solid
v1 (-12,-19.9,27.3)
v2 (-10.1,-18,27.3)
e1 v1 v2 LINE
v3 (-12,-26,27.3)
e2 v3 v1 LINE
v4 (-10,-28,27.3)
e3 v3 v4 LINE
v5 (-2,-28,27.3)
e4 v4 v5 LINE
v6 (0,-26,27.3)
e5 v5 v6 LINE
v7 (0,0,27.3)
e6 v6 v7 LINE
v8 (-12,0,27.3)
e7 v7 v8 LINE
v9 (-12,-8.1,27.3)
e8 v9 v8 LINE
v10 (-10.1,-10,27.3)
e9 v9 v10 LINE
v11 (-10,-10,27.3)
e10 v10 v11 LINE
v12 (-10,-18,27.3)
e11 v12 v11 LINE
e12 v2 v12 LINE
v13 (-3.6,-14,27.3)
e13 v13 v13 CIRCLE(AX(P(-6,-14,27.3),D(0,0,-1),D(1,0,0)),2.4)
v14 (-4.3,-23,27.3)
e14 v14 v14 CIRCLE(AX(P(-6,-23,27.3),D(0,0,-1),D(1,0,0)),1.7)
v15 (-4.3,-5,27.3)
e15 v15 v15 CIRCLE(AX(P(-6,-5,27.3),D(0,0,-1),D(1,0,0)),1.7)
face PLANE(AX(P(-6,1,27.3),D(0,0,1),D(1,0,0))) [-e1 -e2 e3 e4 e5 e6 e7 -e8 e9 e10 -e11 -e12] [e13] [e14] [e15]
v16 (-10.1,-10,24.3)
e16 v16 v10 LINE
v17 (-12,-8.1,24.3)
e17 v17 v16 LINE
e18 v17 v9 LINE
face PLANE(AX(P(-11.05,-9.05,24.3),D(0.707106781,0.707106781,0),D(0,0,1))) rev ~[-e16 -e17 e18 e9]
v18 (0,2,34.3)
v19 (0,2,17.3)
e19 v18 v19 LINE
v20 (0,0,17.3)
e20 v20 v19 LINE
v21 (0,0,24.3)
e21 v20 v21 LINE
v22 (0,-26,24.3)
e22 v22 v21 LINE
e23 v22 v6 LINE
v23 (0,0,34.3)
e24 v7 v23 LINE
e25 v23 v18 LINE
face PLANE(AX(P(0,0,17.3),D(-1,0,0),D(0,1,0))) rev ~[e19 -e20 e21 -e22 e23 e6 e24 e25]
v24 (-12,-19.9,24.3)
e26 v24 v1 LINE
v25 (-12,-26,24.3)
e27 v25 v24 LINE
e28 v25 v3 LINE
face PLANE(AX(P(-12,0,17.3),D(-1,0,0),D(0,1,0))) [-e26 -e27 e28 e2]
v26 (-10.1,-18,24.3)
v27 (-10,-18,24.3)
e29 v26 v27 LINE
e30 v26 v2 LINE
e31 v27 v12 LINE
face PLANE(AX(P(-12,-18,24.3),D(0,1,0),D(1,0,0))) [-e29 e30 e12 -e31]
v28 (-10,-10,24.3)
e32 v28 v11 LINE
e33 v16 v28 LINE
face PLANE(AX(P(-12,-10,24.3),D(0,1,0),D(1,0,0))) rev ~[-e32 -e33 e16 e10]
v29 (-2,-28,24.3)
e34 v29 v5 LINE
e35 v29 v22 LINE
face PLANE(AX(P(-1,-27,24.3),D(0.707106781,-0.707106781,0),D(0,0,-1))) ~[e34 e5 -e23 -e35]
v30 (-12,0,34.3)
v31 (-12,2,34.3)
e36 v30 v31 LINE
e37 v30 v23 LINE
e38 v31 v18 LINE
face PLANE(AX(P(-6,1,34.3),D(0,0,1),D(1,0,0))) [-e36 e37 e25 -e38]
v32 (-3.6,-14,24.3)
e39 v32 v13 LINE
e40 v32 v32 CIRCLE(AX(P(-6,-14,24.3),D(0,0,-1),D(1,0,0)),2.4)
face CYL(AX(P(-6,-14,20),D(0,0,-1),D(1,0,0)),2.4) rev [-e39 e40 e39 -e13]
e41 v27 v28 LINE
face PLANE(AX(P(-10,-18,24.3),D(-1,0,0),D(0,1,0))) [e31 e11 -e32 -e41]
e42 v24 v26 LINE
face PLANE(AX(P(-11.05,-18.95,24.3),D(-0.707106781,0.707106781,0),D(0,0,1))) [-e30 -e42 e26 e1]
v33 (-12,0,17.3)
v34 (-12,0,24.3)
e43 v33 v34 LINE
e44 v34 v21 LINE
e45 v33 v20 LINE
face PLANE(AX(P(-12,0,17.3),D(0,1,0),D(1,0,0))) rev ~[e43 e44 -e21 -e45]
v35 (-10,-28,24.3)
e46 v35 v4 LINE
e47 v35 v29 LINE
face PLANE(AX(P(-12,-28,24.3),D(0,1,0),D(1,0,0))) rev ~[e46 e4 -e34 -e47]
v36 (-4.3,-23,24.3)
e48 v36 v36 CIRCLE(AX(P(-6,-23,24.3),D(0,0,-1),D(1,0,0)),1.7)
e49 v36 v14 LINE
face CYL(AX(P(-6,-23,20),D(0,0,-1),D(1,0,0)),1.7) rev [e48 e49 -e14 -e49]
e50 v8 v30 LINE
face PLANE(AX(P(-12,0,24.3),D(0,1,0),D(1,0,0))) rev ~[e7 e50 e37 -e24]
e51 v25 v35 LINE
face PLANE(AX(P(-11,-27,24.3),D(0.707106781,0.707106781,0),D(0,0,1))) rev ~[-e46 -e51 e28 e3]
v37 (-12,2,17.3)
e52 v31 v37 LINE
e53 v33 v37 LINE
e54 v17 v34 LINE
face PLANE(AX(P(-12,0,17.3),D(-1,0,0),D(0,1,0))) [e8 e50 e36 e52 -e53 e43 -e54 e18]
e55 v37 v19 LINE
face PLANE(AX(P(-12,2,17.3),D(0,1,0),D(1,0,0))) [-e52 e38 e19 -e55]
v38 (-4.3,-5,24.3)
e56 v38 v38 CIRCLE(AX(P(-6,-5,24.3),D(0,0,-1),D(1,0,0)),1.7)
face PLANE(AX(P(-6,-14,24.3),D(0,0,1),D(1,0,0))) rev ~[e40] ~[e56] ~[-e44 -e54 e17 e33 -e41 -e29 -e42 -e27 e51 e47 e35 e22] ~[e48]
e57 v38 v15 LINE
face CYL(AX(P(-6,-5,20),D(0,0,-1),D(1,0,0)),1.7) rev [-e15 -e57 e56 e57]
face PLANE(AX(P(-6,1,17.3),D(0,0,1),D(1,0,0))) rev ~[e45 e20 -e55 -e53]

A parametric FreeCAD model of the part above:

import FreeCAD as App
import Part
import Sketcher


def edges_at(feature, points):
    """Names of the edges that pass closest to the given points."""
    edges = feature.Shape.Edges
    near = lambda p: min(range(len(edges)), key=lambda i: edges[i].distToShape(Part.Vertex(*p))[0])
    return sorted({f"Edge{near(p) + 1}" for p in points})

doc = App.newDocument("Part")
body = doc.addObject("PartDesign::Body", "Body")

sketch1 = body.newObject("Sketcher::SketchObject", "Sketch")
sketch1.AttachmentSupport = (doc.getObject("XY_Plane"), [""])
sketch1.MapMode = "FlatFace"
sketch1.AttachmentOffset = App.Placement(App.Vector(0, 0, 24.3), App.Rotation())
sketch1.addGeometry([
    Part.LineSegment(App.Vector(-12, -10, 0), App.Vector(-12, -18, 0)),
    Part.LineSegment(App.Vector(-12, -18, 0), App.Vector(-10, -18, 0)),
    Part.LineSegment(App.Vector(-10, -18, 0), App.Vector(-10, -10, 0)),
    Part.LineSegment(App.Vector(-10, -10, 0), App.Vector(-12, -10, 0)),
], False)
sketch1.addConstraint([
    Sketcher.Constraint("Coincident", 0, 2, 1, 1),
    Sketcher.Constraint("Coincident", 1, 2, 2, 1),
    Sketcher.Constraint("Coincident", 2, 2, 3, 1),
    Sketcher.Constraint("Coincident", 3, 2, 0, 1),
    Sketcher.Constraint("Vertical", 0),
    Sketcher.Constraint("Horizontal", 1),
    Sketcher.Constraint("Vertical", 2),
    Sketcher.Constraint("Horizontal", 3),
    Sketcher.Constraint("DistanceX", 1, 1, 1, 2, 2.0),
    Sketcher.Constraint("DistanceY", 0, 2, 0, 1, 8.0),
    Sketcher.Constraint("DistanceX", 0, 2, -1, 1, 12.0),
    Sketcher.Constraint("DistanceY", 0, 2, -1, 1, 18.0),
])
pad1 = body.newObject("PartDesign::Pad", "Pad")
pad1.Profile = sketch1
pad1.Length = 3
body2 = doc.addObject("PartDesign::Body", "Body001")

sketch2 = body2.newObject("Sketcher::SketchObject", "Sketch001")
sketch2.AttachmentSupport = (doc.getObject("XY_Plane001"), [""])
sketch2.MapMode = "FlatFace"
sketch2.AttachmentOffset = App.Placement(App.Vector(0, 0, 17.3), App.Rotation())
sketch2.addGeometry([
    Part.LineSegment(App.Vector(-12, 2, 0), App.Vector(-12, 0, 0)),
    Part.LineSegment(App.Vector(-12, 0, 0), App.Vector(0, 0, 0)),
    Part.LineSegment(App.Vector(0, 0, 0), App.Vector(0, 2, 0)),
    Part.LineSegment(App.Vector(0, 2, 0), App.Vector(-12, 2, 0)),
], False)
sketch2.addConstraint([
    Sketcher.Constraint("Coincident", 0, 2, 1, 1),
    Sketcher.Constraint("Coincident", 1, 2, 2, 1),
    Sketcher.Constraint("Coincident", 2, 2, 3, 1),
    Sketcher.Constraint("Coincident", 3, 2, 0, 1),
    Sketcher.Constraint("Vertical", 0),
    Sketcher.Constraint("Horizontal", 1),
    Sketcher.Constraint("Vertical", 2),
    Sketcher.Constraint("Horizontal", 3),
    Sketcher.Constraint("Coincident", 1, 2, -1, 1),
    Sketcher.Constraint("DistanceX", 1, 1, 1, 2, 12.0),
    Sketcher.Constraint("DistanceY", 0, 2, 0, 1, 2.0),
])
pad2 = body2.newObject("PartDesign::Pad", "Pad001")
pad2.Profile = sketch2
pad2.Length = 10
body3 = doc.addObject("PartDesign::Body", "Body002")

sketch3 = body3.newObject("Sketcher::SketchObject", "Sketch002")
sketch3.AttachmentSupport = (doc.getObject("XY_Plane002"), [""])
sketch3.MapMode = "FlatFace"
sketch3.AttachmentOffset = App.Placement(App.Vector(0, 0, 24.3), App.Rotation())
sketch3.addGeometry([
    Part.LineSegment(App.Vector(-12, 2, 0), App.Vector(-12, 0, 0)),
    Part.LineSegment(App.Vector(-12, 0, 0), App.Vector(0, 0, 0)),
    Part.LineSegment(App.Vector(0, 0, 0), App.Vector(0, 2, 0)),
    Part.LineSegment(App.Vector(0, 2, 0), App.Vector(-12, 2, 0)),
], False)
sketch3.addConstraint([
    Sketcher.Constraint("Coincident", 0, 2, 1, 1),
    Sketcher.Constraint("Coincident", 1, 2, 2, 1),
    Sketcher.Constraint("Coincident", 2, 2, 3, 1),
    Sketcher.Constraint("Coincident", 3, 2, 0, 1),
    Sketcher.Constraint("Vertical", 0),
    Sketcher.Constraint("Horizontal", 1),
    Sketcher.Constraint("Vertical", 2),
    Sketcher.Constraint("Horizontal", 3),
    Sketcher.Constraint("Coincident", 1, 2, -1, 1),
    Sketcher.Constraint("DistanceX", 1, 1, 1, 2, 12.0),
    Sketcher.Constraint("DistanceY", 0, 2, 0, 1, 2.0),
])
pad3 = body3.newObject("PartDesign::Pad", "Pad002")
pad3.Profile = sketch3
pad3.Length = 10
body4 = doc.addObject("PartDesign::Body", "Body003")

sketch4 = body4.newObject("Sketcher::SketchObject", "Sketch003")
sketch4.AttachmentSupport = (doc.getObject("XY_Plane003"), [""])
sketch4.MapMode = "FlatFace"
sketch4.AttachmentOffset = App.Placement(App.Vector(0, 0, 20), App.Rotation())
sketch4.addGeometry(Part.Circle(App.Vector(-6, -5, 0), App.Vector(0, 0, 1), 1.7), False)
sketch4.addConstraint([
    Sketcher.Constraint("Diameter", 0, 3.4),
    Sketcher.Constraint("DistanceX", 0, 3, -1, 1, 6.0),
    Sketcher.Constraint("DistanceY", 0, 3, -1, 1, 5.0),
])
pad4 = body4.newObject("PartDesign::Pad", "Pad003")
pad4.Profile = sketch4
pad4.Length = 10
body5 = doc.addObject("PartDesign::Body", "Body004")

sketch5 = body5.newObject("Sketcher::SketchObject", "Sketch004")
sketch5.AttachmentSupport = (doc.getObject("XY_Plane004"), [""])
sketch5.MapMode = "FlatFace"
sketch5.AttachmentOffset = App.Placement(App.Vector(0, 0, 20), App.Rotation())
sketch5.addGeometry(Part.Circle(App.Vector(-6, -23, 0), App.Vector(0, 0, 1), 1.7), False)
sketch5.addConstraint([
    Sketcher.Constraint("Diameter", 0, 3.4),
    Sketcher.Constraint("DistanceX", 0, 3, -1, 1, 6.0),
    Sketcher.Constraint("DistanceY", 0, 3, -1, 1, 23.0),
])
pad5 = body5.newObject("PartDesign::Pad", "Pad004")
pad5.Profile = sketch5
pad5.Length = 10
body6 = doc.addObject("PartDesign::Body", "Body005")
body6.AllowCompound = True

sketch6 = body6.newObject("Sketcher::SketchObject", "Sketch005")
sketch6.AttachmentSupport = (doc.getObject("XY_Plane005"), [""])
sketch6.MapMode = "FlatFace"
sketch6.AttachmentOffset = App.Placement(App.Vector(0, 0, 20), App.Rotation())
sketch6.addGeometry(Part.Circle(App.Vector(-6, -14, 0), App.Vector(0, 0, 1), 2.4), False)
sketch6.addConstraint([
    Sketcher.Constraint("Diameter", 0, 4.8),
    Sketcher.Constraint("DistanceX", 0, 3, -1, 1, 6.0),
    Sketcher.Constraint("DistanceY", 0, 3, -1, 1, 14.0),
])
pad6 = body6.newObject("PartDesign::Pad", "Pad005")
pad6.Profile = sketch6
pad6.Length = 10
doc.recompute()

boolean = body6.newObject("PartDesign::Boolean", "Boolean")
boolean.Type = "Fuse"
boolean.addObjects([body4])
doc.recompute()

boolean2 = body6.newObject("PartDesign::Boolean", "Boolean001")
boolean2.Type = "Fuse"
boolean2.addObjects([body5])
body7 = doc.addObject("PartDesign::Body", "Body006")

sketch7 = body7.newObject("Sketcher::SketchObject", "Sketch006")
sketch7.AttachmentSupport = (doc.getObject("XY_Plane006"), [""])
sketch7.MapMode = "FlatFace"
sketch7.AttachmentOffset = App.Placement(App.Vector(0, 0, 24.3), App.Rotation())
sketch7.addGeometry([
    Part.LineSegment(App.Vector(-12, 0, 0), App.Vector(-12, -28, 0)),
    Part.LineSegment(App.Vector(-12, -28, 0), App.Vector(0, -28, 0)),
    Part.LineSegment(App.Vector(0, -28, 0), App.Vector(0, 0, 0)),
    Part.LineSegment(App.Vector(0, 0, 0), App.Vector(-12, 0, 0)),
], False)
sketch7.addConstraint([
    Sketcher.Constraint("Coincident", 0, 2, 1, 1),
    Sketcher.Constraint("Coincident", 1, 2, 2, 1),
    Sketcher.Constraint("Coincident", 2, 2, 3, 1),
    Sketcher.Constraint("Coincident", 3, 2, 0, 1),
    Sketcher.Constraint("Vertical", 0),
    Sketcher.Constraint("Horizontal", 1),
    Sketcher.Constraint("Vertical", 2),
    Sketcher.Constraint("Horizontal", 3),
    Sketcher.Constraint("Coincident", 2, 2, -1, 1),
    Sketcher.Constraint("DistanceX", 1, 1, 1, 2, 12.0),
    Sketcher.Constraint("DistanceY", 0, 2, 0, 1, 28.0),
])
pad7 = body7.newObject("PartDesign::Pad", "Pad006")
pad7.Profile = sketch7
pad7.Length = 3
doc.recompute()

boolean3 = body7.newObject("PartDesign::Boolean", "Boolean002")
boolean3.Type = "Cut"
boolean3.addObjects([body6])
doc.recompute()

boolean4 = body7.newObject("PartDesign::Boolean", "Boolean003")
boolean4.Type = "Fuse"
boolean4.addObjects([body2])
doc.recompute()

boolean5 = body7.newObject("PartDesign::Boolean", "Boolean004")
boolean5.Type = "Fuse"
boolean5.addObjects([body3])
doc.recompute()

boolean6 = body7.newObject("PartDesign::Boolean", "Boolean005")
boolean6.Type = "Cut"
boolean6.addObjects([body])
doc.recompute()

chamfer = body7.newObject("PartDesign::Chamfer", "Chamfer")
chamfer.Base = (boolean6, edges_at(boolean6, [(-12, -10, 25.8), (-12, -18, 25.8)]))
chamfer.Size = 1.9
doc.recompute()

chamfer2 = body7.newObject("PartDesign::Chamfer", "Chamfer001")
chamfer2.Base = (chamfer, edges_at(chamfer, [(-12, -28, 25.8), (0, -28, 25.8)]))
chamfer2.Size = 2

doc.recompute()
